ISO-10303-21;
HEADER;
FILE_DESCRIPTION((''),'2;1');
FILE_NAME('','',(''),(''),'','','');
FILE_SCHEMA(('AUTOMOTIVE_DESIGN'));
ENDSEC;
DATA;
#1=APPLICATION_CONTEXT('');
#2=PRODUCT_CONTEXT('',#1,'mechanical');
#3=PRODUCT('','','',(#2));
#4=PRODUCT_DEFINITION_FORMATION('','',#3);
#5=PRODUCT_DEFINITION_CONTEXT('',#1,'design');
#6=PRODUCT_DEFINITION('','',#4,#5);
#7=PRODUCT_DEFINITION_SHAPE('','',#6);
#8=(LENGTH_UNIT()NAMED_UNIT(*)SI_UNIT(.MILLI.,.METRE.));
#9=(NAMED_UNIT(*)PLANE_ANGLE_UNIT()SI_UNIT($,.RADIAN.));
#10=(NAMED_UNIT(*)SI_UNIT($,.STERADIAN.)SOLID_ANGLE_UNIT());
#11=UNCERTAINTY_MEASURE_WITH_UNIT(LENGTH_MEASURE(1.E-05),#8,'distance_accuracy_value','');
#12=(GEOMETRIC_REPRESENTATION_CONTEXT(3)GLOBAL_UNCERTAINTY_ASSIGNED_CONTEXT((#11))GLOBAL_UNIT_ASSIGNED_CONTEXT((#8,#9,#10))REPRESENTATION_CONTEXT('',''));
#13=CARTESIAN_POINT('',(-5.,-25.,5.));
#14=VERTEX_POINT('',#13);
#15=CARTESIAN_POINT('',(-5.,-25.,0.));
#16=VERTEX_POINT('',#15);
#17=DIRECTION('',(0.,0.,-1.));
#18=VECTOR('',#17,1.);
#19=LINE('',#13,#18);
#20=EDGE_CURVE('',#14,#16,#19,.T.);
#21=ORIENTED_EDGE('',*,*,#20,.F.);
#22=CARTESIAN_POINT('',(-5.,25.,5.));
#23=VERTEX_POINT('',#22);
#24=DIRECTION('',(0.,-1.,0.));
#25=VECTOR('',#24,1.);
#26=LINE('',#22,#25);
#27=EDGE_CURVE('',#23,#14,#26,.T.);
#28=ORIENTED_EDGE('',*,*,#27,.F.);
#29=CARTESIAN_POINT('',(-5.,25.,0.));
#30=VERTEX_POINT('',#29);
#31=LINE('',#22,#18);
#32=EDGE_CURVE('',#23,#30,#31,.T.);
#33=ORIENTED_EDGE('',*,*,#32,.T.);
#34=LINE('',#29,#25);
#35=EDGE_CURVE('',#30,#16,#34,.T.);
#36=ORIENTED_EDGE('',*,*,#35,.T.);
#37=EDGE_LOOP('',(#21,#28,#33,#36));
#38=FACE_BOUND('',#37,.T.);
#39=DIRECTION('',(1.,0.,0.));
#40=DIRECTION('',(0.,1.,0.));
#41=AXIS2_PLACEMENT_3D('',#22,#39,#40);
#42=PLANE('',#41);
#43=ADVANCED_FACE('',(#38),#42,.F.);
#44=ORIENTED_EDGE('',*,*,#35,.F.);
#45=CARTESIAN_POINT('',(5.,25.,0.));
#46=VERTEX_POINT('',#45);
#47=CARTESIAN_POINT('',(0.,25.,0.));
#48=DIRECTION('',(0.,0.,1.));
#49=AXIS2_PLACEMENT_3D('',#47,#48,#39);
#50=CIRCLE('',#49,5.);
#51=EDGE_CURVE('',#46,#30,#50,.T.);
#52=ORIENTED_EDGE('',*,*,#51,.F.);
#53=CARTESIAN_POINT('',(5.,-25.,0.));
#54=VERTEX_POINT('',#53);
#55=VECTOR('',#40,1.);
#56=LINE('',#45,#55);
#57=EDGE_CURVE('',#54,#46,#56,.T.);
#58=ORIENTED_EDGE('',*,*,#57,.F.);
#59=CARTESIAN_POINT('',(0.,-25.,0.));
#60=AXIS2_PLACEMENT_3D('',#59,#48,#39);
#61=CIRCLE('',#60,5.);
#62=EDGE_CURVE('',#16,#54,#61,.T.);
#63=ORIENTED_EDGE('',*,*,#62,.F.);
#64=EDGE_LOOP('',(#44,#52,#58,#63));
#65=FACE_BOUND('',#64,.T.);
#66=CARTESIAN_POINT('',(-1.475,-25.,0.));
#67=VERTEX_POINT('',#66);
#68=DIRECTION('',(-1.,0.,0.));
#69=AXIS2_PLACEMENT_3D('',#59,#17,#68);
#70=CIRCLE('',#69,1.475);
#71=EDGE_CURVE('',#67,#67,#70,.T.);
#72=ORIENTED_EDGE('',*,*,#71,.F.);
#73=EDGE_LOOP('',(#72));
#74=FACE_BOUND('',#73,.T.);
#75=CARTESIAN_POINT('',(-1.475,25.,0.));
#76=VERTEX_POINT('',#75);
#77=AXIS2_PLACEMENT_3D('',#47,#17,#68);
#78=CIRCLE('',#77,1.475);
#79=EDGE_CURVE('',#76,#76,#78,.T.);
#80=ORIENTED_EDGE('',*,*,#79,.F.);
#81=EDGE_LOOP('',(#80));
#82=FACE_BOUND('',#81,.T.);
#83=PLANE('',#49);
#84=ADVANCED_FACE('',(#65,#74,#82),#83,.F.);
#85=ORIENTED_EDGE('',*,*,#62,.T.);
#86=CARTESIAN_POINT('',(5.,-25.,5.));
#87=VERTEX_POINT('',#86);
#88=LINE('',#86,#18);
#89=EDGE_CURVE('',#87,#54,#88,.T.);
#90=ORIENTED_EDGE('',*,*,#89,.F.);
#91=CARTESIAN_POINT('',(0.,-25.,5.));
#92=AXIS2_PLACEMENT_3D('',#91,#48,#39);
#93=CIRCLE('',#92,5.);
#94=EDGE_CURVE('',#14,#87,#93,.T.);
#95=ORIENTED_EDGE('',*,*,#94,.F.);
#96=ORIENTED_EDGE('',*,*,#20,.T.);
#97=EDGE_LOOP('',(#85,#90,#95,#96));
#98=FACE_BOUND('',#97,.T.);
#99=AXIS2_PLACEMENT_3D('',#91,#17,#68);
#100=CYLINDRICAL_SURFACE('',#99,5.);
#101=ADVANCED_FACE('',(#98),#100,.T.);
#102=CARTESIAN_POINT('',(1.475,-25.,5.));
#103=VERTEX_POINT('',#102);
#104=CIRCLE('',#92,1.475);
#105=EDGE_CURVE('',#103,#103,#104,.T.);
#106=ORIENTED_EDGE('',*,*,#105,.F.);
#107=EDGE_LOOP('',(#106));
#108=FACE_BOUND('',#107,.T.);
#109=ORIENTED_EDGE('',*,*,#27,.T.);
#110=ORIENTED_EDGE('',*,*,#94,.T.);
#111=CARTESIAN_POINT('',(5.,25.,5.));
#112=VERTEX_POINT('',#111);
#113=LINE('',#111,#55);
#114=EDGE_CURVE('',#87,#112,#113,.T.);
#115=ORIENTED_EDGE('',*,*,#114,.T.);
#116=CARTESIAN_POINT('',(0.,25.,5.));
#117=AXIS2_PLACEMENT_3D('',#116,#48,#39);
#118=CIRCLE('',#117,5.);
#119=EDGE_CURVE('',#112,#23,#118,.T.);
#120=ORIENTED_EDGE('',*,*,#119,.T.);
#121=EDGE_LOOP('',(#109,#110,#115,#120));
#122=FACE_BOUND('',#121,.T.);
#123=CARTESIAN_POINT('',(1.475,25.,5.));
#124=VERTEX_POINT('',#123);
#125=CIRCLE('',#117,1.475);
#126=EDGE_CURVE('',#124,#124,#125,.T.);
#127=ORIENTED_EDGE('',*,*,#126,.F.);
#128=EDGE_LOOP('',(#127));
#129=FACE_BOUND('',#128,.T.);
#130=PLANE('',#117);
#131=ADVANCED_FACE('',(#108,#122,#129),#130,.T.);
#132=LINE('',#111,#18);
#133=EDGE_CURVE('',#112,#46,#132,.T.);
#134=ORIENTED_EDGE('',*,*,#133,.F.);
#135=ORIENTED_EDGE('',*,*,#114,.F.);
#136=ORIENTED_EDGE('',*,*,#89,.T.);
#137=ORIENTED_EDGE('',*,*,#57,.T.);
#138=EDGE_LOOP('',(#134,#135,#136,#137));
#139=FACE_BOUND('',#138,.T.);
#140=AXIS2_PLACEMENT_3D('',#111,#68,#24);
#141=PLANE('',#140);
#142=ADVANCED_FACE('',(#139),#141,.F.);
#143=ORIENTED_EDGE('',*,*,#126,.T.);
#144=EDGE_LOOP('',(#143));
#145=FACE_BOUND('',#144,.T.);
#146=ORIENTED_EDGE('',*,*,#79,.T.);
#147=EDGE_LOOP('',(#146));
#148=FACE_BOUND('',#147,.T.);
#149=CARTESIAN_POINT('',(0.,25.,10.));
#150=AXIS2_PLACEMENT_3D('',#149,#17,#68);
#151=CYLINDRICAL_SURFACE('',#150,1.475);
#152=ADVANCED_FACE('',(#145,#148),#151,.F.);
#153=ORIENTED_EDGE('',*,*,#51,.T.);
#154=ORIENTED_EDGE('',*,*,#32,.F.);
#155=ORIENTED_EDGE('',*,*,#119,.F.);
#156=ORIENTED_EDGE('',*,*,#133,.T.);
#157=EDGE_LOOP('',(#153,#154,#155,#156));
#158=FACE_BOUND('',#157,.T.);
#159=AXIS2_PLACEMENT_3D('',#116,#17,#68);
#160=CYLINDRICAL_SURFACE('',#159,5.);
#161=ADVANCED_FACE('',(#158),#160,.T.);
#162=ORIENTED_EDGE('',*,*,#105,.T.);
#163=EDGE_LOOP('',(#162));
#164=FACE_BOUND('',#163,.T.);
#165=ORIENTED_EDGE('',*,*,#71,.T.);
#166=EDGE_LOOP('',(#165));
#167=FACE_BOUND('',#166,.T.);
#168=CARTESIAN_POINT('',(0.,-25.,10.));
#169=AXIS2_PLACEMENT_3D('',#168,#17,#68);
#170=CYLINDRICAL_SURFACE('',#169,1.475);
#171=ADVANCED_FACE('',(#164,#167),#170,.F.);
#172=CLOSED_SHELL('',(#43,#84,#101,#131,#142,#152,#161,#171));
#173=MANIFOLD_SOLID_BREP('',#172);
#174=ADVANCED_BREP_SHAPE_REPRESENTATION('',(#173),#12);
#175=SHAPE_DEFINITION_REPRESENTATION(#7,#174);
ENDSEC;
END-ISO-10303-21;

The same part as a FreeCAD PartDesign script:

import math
import FreeCAD as App
import Part
import Sketcher

V = App.Vector

doc = App.newDocument("Part")
body = doc.addObject("PartDesign::Body", "Body")

# Sketch on XY plane
sketch1 = body.newObject("Sketcher::SketchObject", "Sketch")
sketch1.AttachmentSupport = (doc.getObject("XY_Plane"), [""])
sketch1.MapMode = "FlatFace"
sketch1.addGeometry(Part.LineSegment(V(5, -25, 0), V(5, 25, 0)), False)
sketch1.addGeometry(Part.ArcOfCircle(Part.Circle(V(0, 25, 0), V(0, 0, 1), 5), math.radians(0), math.radians(180)), False)
sketch1.addGeometry(Part.LineSegment(V(-5, 25, 0), V(-5, -25, 0)), False)
sketch1.addGeometry(Part.ArcOfCircle(Part.Circle(V(0, -25, 0), V(0, 0, 1), 5), math.radians(180), math.radians(360)), False)
sketch1.addConstraint(Sketcher.Constraint("Tangent", 0, 2, 1, 1))
sketch1.addConstraint(Sketcher.Constraint("Tangent", 1, 2, 2, 1))
sketch1.addConstraint(Sketcher.Constraint("Tangent", 2, 2, 3, 1))
sketch1.addConstraint(Sketcher.Constraint("Tangent", 3, 2, 0, 1))
sketch1.addConstraint(Sketcher.Constraint("Vertical", 0))
sketch1.addConstraint(Sketcher.Constraint("Vertical", 2))
sketch1.addConstraint(Sketcher.Constraint("Symmetric", 1, 3, 3, 3, -1, 1))
sketch1.addConstraint(Sketcher.Constraint("Radius", 1, 5.0))
sketch1.addConstraint(Sketcher.Constraint("DistanceY", 0, 1, 0, 2, 50.0))
pad1 = body.newObject("PartDesign::Pad", "Pad")
pad1.Profile = sketch1
pad1.Length = 5

# Sketch on XY plane
sketch2 = body.newObject("Sketcher::SketchObject", "Sketch001")
sketch2.AttachmentSupport = (doc.getObject("XY_Plane"), [""])
sketch2.MapMode = "FlatFace"
sketch2.addGeometry(Part.Circle(V(0, -25, 0), V(0, 0, 1), 1.5), False)
sketch2.addGeometry(Part.Circle(V(0, 25, 0), V(0, 0, 1), 1.5), False)
sketch2.addConstraint(Sketcher.Constraint("Equal", 0, 1))
sketch2.addConstraint(Sketcher.Constraint("Symmetric", 0, 3, 1, 3, -1, 1))
sketch2.addConstraint(Sketcher.Constraint("PointOnObject", 0, 3, -2))
sketch2.addConstraint(Sketcher.Constraint("Diameter", 0, 2.95))
sketch2.addConstraint(Sketcher.Constraint("DistanceY", 0, 3, -1, 1, 25.0))
pocket1 = body.newObject("PartDesign::Pocket", "Pocket")
pocket1.Profile = sketch2
pocket1.Length = 10
pocket1.Reversed = True

doc.recompute()
